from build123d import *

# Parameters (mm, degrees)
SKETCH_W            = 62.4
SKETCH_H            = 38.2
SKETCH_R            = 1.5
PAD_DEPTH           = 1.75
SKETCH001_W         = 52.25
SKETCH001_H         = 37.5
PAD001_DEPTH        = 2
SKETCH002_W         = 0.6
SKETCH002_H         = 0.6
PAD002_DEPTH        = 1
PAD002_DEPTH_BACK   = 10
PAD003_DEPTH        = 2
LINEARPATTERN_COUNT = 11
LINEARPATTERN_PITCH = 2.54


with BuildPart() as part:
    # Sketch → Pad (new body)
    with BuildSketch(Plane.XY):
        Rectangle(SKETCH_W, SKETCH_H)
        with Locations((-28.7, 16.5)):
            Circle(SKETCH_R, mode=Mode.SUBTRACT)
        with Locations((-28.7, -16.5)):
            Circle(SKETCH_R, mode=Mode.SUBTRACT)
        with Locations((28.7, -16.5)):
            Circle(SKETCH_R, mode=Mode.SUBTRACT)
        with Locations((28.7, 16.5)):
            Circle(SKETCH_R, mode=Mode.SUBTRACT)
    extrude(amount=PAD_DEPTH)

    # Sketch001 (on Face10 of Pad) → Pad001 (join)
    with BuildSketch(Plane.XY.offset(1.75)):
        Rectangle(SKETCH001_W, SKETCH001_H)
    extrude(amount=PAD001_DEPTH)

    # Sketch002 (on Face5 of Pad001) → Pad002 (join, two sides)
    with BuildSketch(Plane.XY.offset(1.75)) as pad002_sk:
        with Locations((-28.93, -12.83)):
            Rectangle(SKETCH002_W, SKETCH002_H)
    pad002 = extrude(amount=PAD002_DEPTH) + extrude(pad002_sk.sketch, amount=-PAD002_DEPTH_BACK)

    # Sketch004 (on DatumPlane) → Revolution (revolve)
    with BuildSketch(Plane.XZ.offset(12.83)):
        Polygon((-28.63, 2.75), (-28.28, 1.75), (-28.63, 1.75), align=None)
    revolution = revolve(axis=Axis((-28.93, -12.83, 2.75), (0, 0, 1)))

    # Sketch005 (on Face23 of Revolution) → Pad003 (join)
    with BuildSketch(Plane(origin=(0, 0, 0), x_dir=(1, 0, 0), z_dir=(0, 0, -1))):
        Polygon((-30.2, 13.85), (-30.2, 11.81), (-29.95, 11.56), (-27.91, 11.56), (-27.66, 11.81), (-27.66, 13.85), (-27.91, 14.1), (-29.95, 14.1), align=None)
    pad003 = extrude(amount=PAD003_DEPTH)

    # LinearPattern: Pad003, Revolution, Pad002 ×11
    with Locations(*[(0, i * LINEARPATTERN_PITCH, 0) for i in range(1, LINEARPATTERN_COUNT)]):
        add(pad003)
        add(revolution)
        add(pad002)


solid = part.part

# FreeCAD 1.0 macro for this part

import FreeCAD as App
import Part
import Sketcher
from FreeCAD import Vector


def add_polygon(sketch, points):
    """Adds a closed chain of lines whose ends are joined by coincident constraints."""
    first, n = sketch.GeometryCount, len(points)
    for a, b in zip(points, points[1:] + points[:1]):
        sketch.addGeometry(Part.LineSegment(App.Vector(*a, 0), App.Vector(*b, 0)), False)
    for i in range(n):
        sketch.addConstraint(Sketcher.Constraint("Coincident", first + i, 2, first + (i + 1) % n, 1))

doc = App.newDocument("Part")
body = doc.addObject("PartDesign::Body", "Body")

# Sketch on XY plane
sketch1 = doc.addObject("Sketcher::SketchObject", "Sketch")
body.addObject(sketch1)
sketch1.AttachmentSupport = (doc.XY_Plane, [""])
sketch1.MapMode = "FlatFace"
add_polygon(sketch1, [(-31.2, 19.1), (-31.2, -19.1), (31.2, -19.1), (31.2, 19.1)])  # lines 0-3
sketch1.addGeometry(Part.Circle(Vector(-28.7, -16.5, 0), Vector(0, 0, 1), 1.5), False)  # 4
sketch1.addGeometry(Part.Circle(Vector(28.7, -16.5, 0), Vector(0, 0, 1), 1.5), False)  # 5
sketch1.addGeometry(Part.Circle(Vector(-28.7, 16.5, 0), Vector(0, 0, 1), 1.5), False)  # 6
sketch1.addGeometry(Part.Circle(Vector(28.7, 16.5, 0), Vector(0, 0, 1), 1.5), False)  # 7
sketch1.addConstraint([
    Sketcher.Constraint("Vertical", 0),
    Sketcher.Constraint("Horizontal", 1),
    Sketcher.Constraint("Vertical", 2),
    Sketcher.Constraint("Horizontal", 3),
    Sketcher.Constraint("Equal", 4, 5),
    Sketcher.Constraint("Equal", 5, 6),
    Sketcher.Constraint("Equal", 6, 7),
    Sketcher.Constraint("Symmetric", 5, 3, 6, 3, -1, 1),
    Sketcher.Constraint("Symmetric", 4, 3, 7, 3, -1, 1),
    Sketcher.Constraint("Symmetric", 0, 2, 2, 2, -1, 1),
    Sketcher.Constraint("Symmetric", 4, 3, 5, 3, -2),
    Sketcher.Constraint("Diameter", 4, 3.0),
    Sketcher.Constraint("DistanceX", 1, 1, 1, 2, 62.4),
    Sketcher.Constraint("DistanceY", 0, 2, 0, 1, 38.2),
    Sketcher.Constraint("DistanceY", 4, 3, 6, 3, 33.0),
    Sketcher.Constraint("DistanceX", 4, 3, -1, 1, 28.7),
])
pad1 = doc.addObject("PartDesign::Pad", "Pad")
body.addObject(pad1)
pad1.Profile = sketch1
pad1.Length = 1.75

# Sketch on XY plane
sketch2 = doc.addObject("Sketcher::SketchObject", "Sketch001")
body.addObject(sketch2)
sketch2.AttachmentSupport = (doc.XY_Plane, [""])
sketch2.MapMode = "FlatFace"
sketch2.AttachmentOffset = App.Placement(Vector(0, 0, 1.75), App.Rotation())
add_polygon(sketch2, [(-26, 19), (-26, -19), (26, -19), (26, 19)])  # lines 0-3
sketch2.addConstraint([
    Sketcher.Constraint("Vertical", 0),
    Sketcher.Constraint("Horizontal", 1),
    Sketcher.Constraint("Vertical", 2),
    Sketcher.Constraint("Horizontal", 3),
    Sketcher.Constraint("Symmetric", 0, 2, 2, 2, -1, 1),
    Sketcher.Constraint("DistanceY", 0, 2, 0, 1, 37.5),
    Sketcher.Constraint("DistanceX", 1, 1, 1, 2, 52.25),
])
pad2 = doc.addObject("PartDesign::Pad", "Pad001")
body.addObject(pad2)
pad2.Profile = sketch2
pad2.Length = 2

# Sketch on XY plane
sketch3 = doc.addObject("Sketcher::SketchObject", "Sketch002")
body.addObject(sketch3)
sketch3.AttachmentSupport = (doc.XY_Plane, [""])
sketch3.MapMode = "FlatFace"
sketch3.AttachmentOffset = App.Placement(Vector(0, 0, 1.75), App.Rotation())
add_polygon(sketch3, [(-29.2, -12.5), (-29.2, -13.1), (-28.6, -13.1), (-28.6, -12.5)])  # lines 0-3
sketch3.addConstraint([
    Sketcher.Constraint("Vertical", 0),
    Sketcher.Constraint("Horizontal", 1),
    Sketcher.Constraint("Vertical", 2),
    Sketcher.Constraint("Horizontal", 3),
    Sketcher.Constraint("Equal", 3, 0),
    Sketcher.Constraint("DistanceX", 1, 1, 1, 2, 0.6),
    Sketcher.Constraint("DistanceX", 0, 2, -1, 1, 29.23),
    Sketcher.Constraint("DistanceY", 0, 2, -1, 1, 13.13),
])
pad3 = doc.addObject("PartDesign::Pad", "Pad002")
body.addObject(pad3)
pad3.Profile = sketch3
pad3.Type = "TwoLengths"
pad3.Length = 1
pad3.Length2 = 10

# Sketch on XZ plane
sketch4 = doc.addObject("Sketcher::SketchObject", "Sketch003")
body.addObject(sketch4)
sketch4.AttachmentSupport = (doc.XZ_Plane, [""])
sketch4.MapMode = "FlatFace"
sketch4.AttachmentOffset = App.Placement(Vector(0, 0, 12.83), App.Rotation())
add_polygon(sketch4, [(-28.28, 1.75), (-28.63, 2.75), (-28.63, 1.75)])  # lines 0-2
sketch4.addGeometry(Part.LineSegment(Vector(-28.93, 1.75, 0), Vector(-28.93, 2.75, 0)), True)  # axis
sketch4.addConstraint([
    Sketcher.Constraint("Vertical", 1),
    Sketcher.Constraint("Horizontal", 2),
    Sketcher.Constraint("Vertical", 3),
    Sketcher.Constraint("Horizontal", 2, 2, 3, 1),
    Sketcher.Constraint("Horizontal", 0, 2, 3, 2),
    Sketcher.Constraint("DistanceY", 1, 2, 1, 1, 1.0),
    Sketcher.Constraint("DistanceX", 2, 1, 2, 2, 0.35),
    Sketcher.Constraint("DistanceX", 3, 1, 1, 2, 0.3),
    Sketcher.Constraint("DistanceX", 0, 2, -1, 1, 28.63),
    Sketcher.Constraint("DistanceY", -1, 1, 0, 2, 2.75),
])
revolution = doc.addObject("PartDesign::Revolution", "Revolution")
body.addObject(revolution)
revolution.Profile = sketch4
revolution.ReferenceAxis = (sketch4, ["Axis0"])
revolution.Angle = 360

# Sketch on XY plane
sketch5 = doc.addObject("Sketcher::SketchObject", "Sketch004")
body.addObject(sketch5)
sketch5.AttachmentSupport = (doc.XY_Plane, [""])
sketch5.MapMode = "FlatFace"
add_polygon(sketch5, [(-30.2, -13.85), (-30.2, -11.81), (-29.95, -11.56), (-27.91, -11.56), (-27.66, -11.81), (-27.66, -13.85), (-27.91, -14.1), (-29.95, -14.1)])  # lines 0-7
sketch5.addConstraint([
    Sketcher.Constraint("Vertical", 0),
    Sketcher.Constraint("Horizontal", 2),
    Sketcher.Constraint("Vertical", 4),
    Sketcher.Constraint("Horizontal", 6),
    Sketcher.Constraint("Perpendicular", 1, 3),
    Sketcher.Constraint("Perpendicular", 3, 5),
    Sketcher.Constraint("Perpendicular", 5, 7),
    Sketcher.Constraint("Horizontal", 0, 2, 3, 2),
    Sketcher.Constraint("Horizontal", 4, 2, 7, 2),
    Sketcher.Constraint("Vertical", 2, 2, 5, 2),
    Sketcher.Constraint("Vertical", 1, 2, 6, 2),
    Sketcher.Constraint("Equal", 6, 0),
    Sketcher.Constraint("DistanceX", 2, 1, 2, 2, 2.04),
    Sketcher.Constraint("DistanceX", 0, 2, -1, 1, 30.2),
    Sketcher.Constraint("DistanceY", 5, 2, -1, 1, 14.1),
    Sketcher.Constraint("DistanceY", 0, 2, -1, 1, 11.81),
])
pad4 = doc.addObject("PartDesign::Pad", "Pad003")
body.addObject(pad4)
pad4.Profile = sketch5
pad4.Length = 2
pad4.Reversed = True
doc.recompute()

linearpattern = doc.addObject("PartDesign::LinearPattern", "LinearPattern")
body.addObject(linearpattern)
linearpattern.Originals = [pad4, revolution, pad3]
linearpattern.Direction = (doc.Y_Axis, [""])
linearpattern.Mode = "offset"
linearpattern.Offset = 2.54
linearpattern.Occurrences = 11
body.Tip = linearpattern

doc.recompute()
